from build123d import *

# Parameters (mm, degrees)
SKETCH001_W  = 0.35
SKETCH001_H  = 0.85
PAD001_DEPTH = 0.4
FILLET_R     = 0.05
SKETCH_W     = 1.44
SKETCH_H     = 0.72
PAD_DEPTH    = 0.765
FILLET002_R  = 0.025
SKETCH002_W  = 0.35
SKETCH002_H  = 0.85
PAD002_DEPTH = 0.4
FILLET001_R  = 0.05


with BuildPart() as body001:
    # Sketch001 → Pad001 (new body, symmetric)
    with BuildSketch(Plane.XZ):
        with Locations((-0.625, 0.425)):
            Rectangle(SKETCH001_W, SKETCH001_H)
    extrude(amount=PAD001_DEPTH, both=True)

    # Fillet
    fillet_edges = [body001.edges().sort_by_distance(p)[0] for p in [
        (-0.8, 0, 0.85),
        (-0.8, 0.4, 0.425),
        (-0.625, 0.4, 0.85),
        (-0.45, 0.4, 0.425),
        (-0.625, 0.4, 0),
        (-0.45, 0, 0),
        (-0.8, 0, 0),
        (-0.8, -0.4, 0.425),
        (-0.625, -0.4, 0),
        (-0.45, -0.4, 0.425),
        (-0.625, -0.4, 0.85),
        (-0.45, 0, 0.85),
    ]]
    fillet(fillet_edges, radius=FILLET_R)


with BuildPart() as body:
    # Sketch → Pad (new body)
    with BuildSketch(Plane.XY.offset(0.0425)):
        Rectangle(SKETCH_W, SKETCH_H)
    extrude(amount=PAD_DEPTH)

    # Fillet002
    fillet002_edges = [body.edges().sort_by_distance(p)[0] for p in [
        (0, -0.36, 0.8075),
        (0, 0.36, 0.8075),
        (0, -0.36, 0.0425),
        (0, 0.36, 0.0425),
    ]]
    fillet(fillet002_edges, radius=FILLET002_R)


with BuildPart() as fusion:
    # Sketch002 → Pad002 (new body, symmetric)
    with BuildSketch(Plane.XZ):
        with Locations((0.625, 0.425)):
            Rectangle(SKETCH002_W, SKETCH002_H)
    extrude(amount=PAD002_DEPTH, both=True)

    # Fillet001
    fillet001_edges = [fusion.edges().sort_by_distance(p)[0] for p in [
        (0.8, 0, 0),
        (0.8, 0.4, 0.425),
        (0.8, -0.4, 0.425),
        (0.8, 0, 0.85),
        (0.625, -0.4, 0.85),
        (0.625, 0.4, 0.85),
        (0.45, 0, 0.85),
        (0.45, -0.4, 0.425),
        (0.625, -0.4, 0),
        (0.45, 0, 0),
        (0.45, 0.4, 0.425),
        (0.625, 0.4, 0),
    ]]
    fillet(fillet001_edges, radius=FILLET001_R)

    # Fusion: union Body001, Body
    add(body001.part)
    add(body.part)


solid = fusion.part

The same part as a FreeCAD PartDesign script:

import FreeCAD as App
import Part
import Sketcher
from FreeCAD import Vector
Q = App.Units.Quantity


def edges_at(feature, points):
    """Names of the edges that pass closest to the given points."""
    edges = feature.Shape.Edges
    near = lambda p: min(range(len(edges)), key=lambda i: edges[i].distToShape(Part.Vertex(*p))[0])
    return sorted({f"Edge{near(p) + 1}" for p in points})


def add_polygon(sketch, points):
    """Adds a closed chain of lines whose ends are joined by coincident constraints."""
    first, n = sketch.GeometryCount, len(points)
    for a, b in zip(points, points[1:] + points[:1]):
        sketch.addGeometry(Part.LineSegment(App.Vector(*a, 0), App.Vector(*b, 0)), False)
    for i in range(n):
        sketch.addConstraint(Sketcher.Constraint("Coincident", first + i, 2, first + (i + 1) % n, 1))

doc = App.newDocument("Part")
body = doc.addObject("PartDesign::Body", "Body")

sketch1 = doc.addObject("Sketcher::SketchObject", "Sketch")
body.addObject(sketch1)
sketch1.AttachmentSupport = (doc.XZ_Plane, [""])
sketch1.MapMode = "FlatFace"
add_polygon(sketch1, [(-0.8, 0.85), (-0.8, 0), (-0.45, 0), (-0.45, 0.85)])
sketch1.addConstraint([
    Sketcher.Constraint("Vertical", 0),
    Sketcher.Constraint("Horizontal", 1),
    Sketcher.Constraint("Vertical", 2),
    Sketcher.Constraint("Horizontal", 3),
    Sketcher.Constraint("PointOnObject", 0, 2, -1),
    Sketcher.Constraint("DistanceX", 1, 1, 1, 2, Q("0.35 mm")),
    Sketcher.Constraint("DistanceY", 0, 2, 0, 1, Q("0.85 mm")),
    Sketcher.Constraint("DistanceX", 0, 2, -1, 1, Q("0.8 mm")),
])
pad1 = doc.addObject("PartDesign::Pad", "Pad")
body.addObject(pad1)
pad1.Profile = sketch1
pad1.Length = 0.8
pad1.Midplane = True
doc.recompute()

fillet = doc.addObject("PartDesign::Fillet", "Fillet")
body.addObject(fillet)
fillet.Base = (pad1, ["Edge1"])
fillet.UseAllEdges = True
fillet.Radius = 0.05
body2 = doc.addObject("PartDesign::Body", "Body001")

sketch2 = doc.addObject("Sketcher::SketchObject", "Sketch001")
body2.addObject(sketch2)
sketch2.AttachmentSupport = (doc.getObject("XY_Plane001"), [""])
sketch2.MapMode = "FlatFace"
sketch2.AttachmentOffset = App.Placement(Vector(0, 0, 0.0425), App.Rotation())
add_polygon(sketch2, [(-0.7, 0.4), (-0.7, -0.4), (0.7, -0.4), (0.7, 0.4)])
sketch2.addConstraint([
    Sketcher.Constraint("Vertical", 0),
    Sketcher.Constraint("Horizontal", 1),
    Sketcher.Constraint("Vertical", 2),
    Sketcher.Constraint("Horizontal", 3),
    Sketcher.Constraint("Symmetric", 0, 2, 2, 2, -1, 1),
    Sketcher.Constraint("DistanceX", 1, 1, 1, 2, Q("1.44 mm")),
    Sketcher.Constraint("DistanceY", 0, 2, 0, 1, Q("0.72 mm")),
])
pad2 = doc.addObject("PartDesign::Pad", "Pad001")
body2.addObject(pad2)
pad2.Profile = sketch2
pad2.Length = 0.765
doc.recompute()

fillet2 = doc.addObject("PartDesign::Fillet", "Fillet001")
body2.addObject(fillet2)
fillet2.Base = (pad2, edges_at(pad2, [
    (0, -0.36, 0.807),
    (0, 0.36, 0.807),
    (0, -0.36, 0.043),
    (0, 0.36, 0.043),
]))
fillet2.Radius = 0.025
body3 = doc.addObject("PartDesign::Body", "Body002")
body3.AllowCompound = True

sketch3 = doc.addObject("Sketcher::SketchObject", "Sketch002")
body3.addObject(sketch3)
sketch3.AttachmentSupport = (doc.getObject("XZ_Plane002"), [""])
sketch3.MapMode = "FlatFace"
add_polygon(sketch3, [(0.45, 0.85), (0.45, 0), (0.8, 0), (0.8, 0.85)])
sketch3.addConstraint([
    Sketcher.Constraint("Vertical", 0),
    Sketcher.Constraint("Horizontal", 1),
    Sketcher.Constraint("Vertical", 2),
    Sketcher.Constraint("Horizontal", 3),
    Sketcher.Constraint("PointOnObject", 0, 2, -1),
    Sketcher.Constraint("DistanceX", 1, 1, 1, 2, Q("0.35 mm")),
    Sketcher.Constraint("DistanceY", 0, 2, 0, 1, Q("0.85 mm")),
    Sketcher.Constraint("DistanceX", -1, 1, 1, 2, Q("0.8 mm")),
])
pad3 = doc.addObject("PartDesign::Pad", "Pad002")
body3.addObject(pad3)
pad3.Profile = sketch3
pad3.Length = 0.8
pad3.Midplane = True
doc.recompute()

fillet3 = doc.addObject("PartDesign::Fillet", "Fillet002")
body3.addObject(fillet3)
fillet3.Base = (pad3, ["Edge1"])
fillet3.UseAllEdges = True
fillet3.Radius = 0.05
doc.recompute()

boolean = doc.addObject("PartDesign::Boolean", "Boolean")
body3.addObject(boolean)
boolean.Type = "Fuse"
boolean.addObjects([body])
doc.recompute()

boolean2 = doc.addObject("PartDesign::Boolean", "Boolean001")
body3.addObject(boolean2)
boolean2.Type = "Fuse"
boolean2.addObjects([body2])

doc.recompute()
